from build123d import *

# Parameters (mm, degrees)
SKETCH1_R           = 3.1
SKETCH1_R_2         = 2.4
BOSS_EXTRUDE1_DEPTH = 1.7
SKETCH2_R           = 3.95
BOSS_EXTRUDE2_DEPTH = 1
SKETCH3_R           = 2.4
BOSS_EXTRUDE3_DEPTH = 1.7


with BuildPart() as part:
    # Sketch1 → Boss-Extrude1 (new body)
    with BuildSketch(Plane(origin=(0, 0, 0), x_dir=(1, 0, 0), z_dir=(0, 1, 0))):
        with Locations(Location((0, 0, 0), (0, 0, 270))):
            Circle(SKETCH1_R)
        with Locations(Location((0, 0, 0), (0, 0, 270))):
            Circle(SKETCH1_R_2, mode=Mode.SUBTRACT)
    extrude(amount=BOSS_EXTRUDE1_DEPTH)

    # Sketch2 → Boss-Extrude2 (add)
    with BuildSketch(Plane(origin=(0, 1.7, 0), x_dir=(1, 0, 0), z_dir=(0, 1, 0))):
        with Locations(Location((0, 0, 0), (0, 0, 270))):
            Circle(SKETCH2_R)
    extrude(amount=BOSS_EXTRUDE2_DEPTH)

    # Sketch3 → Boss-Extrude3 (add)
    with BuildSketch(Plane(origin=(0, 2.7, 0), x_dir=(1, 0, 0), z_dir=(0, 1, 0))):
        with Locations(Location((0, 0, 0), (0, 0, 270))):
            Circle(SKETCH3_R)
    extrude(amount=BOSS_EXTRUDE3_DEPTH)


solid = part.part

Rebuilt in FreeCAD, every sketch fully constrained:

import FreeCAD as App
import Part
import Sketcher
Q = App.Units.Quantity

doc = App.newDocument("Part")
body = doc.addObject("PartDesign::Body", "Body")

# Sketch on XZ plane
sketch1 = body.newObject("Sketcher::SketchObject", "Sketch")
sketch1.AttachmentSupport = (doc.getObject("XZ_Plane"), [""])
sketch1.MapMode = "FlatFace"
sketch1.addGeometry([
    Part.Circle(App.Vector(0, 0, 0), App.Vector(0, 0, 1), 3.1),
    Part.Circle(App.Vector(0, 0, 0), App.Vector(0, 0, 1), 2.4),
], False)
sketch1.addConstraint([
    Sketcher.Constraint("Coincident", 0, 3, -1, 1),
    Sketcher.Constraint("Coincident", 1, 3, -1, 1),
    Sketcher.Constraint("Diameter", 0, Q("6.2 mm")),
    Sketcher.Constraint("Diameter", 1, Q("4.8 mm")),
])
pad1 = body.newObject("PartDesign::Pad", "Pad")
pad1.Profile = sketch1
pad1.Length = 1.7
pad1.Reversed = True

# Sketch on XZ plane
sketch2 = body.newObject("Sketcher::SketchObject", "Sketch001")
sketch2.AttachmentSupport = (doc.getObject("XZ_Plane"), [""])
sketch2.MapMode = "FlatFace"
sketch2.AttachmentOffset = App.Placement(App.Vector(0, 0, -1.7), App.Rotation())
sketch2.addGeometry(Part.Circle(App.Vector(0, 0, 0), App.Vector(0, 0, 1), 3.95), False)
sketch2.addConstraint([
    Sketcher.Constraint("Coincident", 0, 3, -1, 1),
    Sketcher.Constraint("Diameter", 0, Q("7.9 mm")),
])
pad2 = body.newObject("PartDesign::Pad", "Pad001")
pad2.Profile = sketch2
pad2.Length = 1
pad2.Reversed = True

# Sketch on XZ plane
sketch3 = body.newObject("Sketcher::SketchObject", "Sketch002")
sketch3.AttachmentSupport = (doc.getObject("XZ_Plane"), [""])
sketch3.MapMode = "FlatFace"
sketch3.AttachmentOffset = App.Placement(App.Vector(0, 0, -2.7), App.Rotation())
sketch3.addGeometry(Part.Circle(App.Vector(0, 0, 0), App.Vector(0, 0, 1), 2.4), False)
sketch3.addConstraint([
    Sketcher.Constraint("Coincident", 0, 3, -1, 1),
    Sketcher.Constraint("Diameter", 0, Q("4.8 mm")),
])
pad3 = body.newObject("PartDesign::Pad", "Pad002")
pad3.Profile = sketch3
pad3.Length = 1.7
pad3.Reversed = True

doc.recompute()
